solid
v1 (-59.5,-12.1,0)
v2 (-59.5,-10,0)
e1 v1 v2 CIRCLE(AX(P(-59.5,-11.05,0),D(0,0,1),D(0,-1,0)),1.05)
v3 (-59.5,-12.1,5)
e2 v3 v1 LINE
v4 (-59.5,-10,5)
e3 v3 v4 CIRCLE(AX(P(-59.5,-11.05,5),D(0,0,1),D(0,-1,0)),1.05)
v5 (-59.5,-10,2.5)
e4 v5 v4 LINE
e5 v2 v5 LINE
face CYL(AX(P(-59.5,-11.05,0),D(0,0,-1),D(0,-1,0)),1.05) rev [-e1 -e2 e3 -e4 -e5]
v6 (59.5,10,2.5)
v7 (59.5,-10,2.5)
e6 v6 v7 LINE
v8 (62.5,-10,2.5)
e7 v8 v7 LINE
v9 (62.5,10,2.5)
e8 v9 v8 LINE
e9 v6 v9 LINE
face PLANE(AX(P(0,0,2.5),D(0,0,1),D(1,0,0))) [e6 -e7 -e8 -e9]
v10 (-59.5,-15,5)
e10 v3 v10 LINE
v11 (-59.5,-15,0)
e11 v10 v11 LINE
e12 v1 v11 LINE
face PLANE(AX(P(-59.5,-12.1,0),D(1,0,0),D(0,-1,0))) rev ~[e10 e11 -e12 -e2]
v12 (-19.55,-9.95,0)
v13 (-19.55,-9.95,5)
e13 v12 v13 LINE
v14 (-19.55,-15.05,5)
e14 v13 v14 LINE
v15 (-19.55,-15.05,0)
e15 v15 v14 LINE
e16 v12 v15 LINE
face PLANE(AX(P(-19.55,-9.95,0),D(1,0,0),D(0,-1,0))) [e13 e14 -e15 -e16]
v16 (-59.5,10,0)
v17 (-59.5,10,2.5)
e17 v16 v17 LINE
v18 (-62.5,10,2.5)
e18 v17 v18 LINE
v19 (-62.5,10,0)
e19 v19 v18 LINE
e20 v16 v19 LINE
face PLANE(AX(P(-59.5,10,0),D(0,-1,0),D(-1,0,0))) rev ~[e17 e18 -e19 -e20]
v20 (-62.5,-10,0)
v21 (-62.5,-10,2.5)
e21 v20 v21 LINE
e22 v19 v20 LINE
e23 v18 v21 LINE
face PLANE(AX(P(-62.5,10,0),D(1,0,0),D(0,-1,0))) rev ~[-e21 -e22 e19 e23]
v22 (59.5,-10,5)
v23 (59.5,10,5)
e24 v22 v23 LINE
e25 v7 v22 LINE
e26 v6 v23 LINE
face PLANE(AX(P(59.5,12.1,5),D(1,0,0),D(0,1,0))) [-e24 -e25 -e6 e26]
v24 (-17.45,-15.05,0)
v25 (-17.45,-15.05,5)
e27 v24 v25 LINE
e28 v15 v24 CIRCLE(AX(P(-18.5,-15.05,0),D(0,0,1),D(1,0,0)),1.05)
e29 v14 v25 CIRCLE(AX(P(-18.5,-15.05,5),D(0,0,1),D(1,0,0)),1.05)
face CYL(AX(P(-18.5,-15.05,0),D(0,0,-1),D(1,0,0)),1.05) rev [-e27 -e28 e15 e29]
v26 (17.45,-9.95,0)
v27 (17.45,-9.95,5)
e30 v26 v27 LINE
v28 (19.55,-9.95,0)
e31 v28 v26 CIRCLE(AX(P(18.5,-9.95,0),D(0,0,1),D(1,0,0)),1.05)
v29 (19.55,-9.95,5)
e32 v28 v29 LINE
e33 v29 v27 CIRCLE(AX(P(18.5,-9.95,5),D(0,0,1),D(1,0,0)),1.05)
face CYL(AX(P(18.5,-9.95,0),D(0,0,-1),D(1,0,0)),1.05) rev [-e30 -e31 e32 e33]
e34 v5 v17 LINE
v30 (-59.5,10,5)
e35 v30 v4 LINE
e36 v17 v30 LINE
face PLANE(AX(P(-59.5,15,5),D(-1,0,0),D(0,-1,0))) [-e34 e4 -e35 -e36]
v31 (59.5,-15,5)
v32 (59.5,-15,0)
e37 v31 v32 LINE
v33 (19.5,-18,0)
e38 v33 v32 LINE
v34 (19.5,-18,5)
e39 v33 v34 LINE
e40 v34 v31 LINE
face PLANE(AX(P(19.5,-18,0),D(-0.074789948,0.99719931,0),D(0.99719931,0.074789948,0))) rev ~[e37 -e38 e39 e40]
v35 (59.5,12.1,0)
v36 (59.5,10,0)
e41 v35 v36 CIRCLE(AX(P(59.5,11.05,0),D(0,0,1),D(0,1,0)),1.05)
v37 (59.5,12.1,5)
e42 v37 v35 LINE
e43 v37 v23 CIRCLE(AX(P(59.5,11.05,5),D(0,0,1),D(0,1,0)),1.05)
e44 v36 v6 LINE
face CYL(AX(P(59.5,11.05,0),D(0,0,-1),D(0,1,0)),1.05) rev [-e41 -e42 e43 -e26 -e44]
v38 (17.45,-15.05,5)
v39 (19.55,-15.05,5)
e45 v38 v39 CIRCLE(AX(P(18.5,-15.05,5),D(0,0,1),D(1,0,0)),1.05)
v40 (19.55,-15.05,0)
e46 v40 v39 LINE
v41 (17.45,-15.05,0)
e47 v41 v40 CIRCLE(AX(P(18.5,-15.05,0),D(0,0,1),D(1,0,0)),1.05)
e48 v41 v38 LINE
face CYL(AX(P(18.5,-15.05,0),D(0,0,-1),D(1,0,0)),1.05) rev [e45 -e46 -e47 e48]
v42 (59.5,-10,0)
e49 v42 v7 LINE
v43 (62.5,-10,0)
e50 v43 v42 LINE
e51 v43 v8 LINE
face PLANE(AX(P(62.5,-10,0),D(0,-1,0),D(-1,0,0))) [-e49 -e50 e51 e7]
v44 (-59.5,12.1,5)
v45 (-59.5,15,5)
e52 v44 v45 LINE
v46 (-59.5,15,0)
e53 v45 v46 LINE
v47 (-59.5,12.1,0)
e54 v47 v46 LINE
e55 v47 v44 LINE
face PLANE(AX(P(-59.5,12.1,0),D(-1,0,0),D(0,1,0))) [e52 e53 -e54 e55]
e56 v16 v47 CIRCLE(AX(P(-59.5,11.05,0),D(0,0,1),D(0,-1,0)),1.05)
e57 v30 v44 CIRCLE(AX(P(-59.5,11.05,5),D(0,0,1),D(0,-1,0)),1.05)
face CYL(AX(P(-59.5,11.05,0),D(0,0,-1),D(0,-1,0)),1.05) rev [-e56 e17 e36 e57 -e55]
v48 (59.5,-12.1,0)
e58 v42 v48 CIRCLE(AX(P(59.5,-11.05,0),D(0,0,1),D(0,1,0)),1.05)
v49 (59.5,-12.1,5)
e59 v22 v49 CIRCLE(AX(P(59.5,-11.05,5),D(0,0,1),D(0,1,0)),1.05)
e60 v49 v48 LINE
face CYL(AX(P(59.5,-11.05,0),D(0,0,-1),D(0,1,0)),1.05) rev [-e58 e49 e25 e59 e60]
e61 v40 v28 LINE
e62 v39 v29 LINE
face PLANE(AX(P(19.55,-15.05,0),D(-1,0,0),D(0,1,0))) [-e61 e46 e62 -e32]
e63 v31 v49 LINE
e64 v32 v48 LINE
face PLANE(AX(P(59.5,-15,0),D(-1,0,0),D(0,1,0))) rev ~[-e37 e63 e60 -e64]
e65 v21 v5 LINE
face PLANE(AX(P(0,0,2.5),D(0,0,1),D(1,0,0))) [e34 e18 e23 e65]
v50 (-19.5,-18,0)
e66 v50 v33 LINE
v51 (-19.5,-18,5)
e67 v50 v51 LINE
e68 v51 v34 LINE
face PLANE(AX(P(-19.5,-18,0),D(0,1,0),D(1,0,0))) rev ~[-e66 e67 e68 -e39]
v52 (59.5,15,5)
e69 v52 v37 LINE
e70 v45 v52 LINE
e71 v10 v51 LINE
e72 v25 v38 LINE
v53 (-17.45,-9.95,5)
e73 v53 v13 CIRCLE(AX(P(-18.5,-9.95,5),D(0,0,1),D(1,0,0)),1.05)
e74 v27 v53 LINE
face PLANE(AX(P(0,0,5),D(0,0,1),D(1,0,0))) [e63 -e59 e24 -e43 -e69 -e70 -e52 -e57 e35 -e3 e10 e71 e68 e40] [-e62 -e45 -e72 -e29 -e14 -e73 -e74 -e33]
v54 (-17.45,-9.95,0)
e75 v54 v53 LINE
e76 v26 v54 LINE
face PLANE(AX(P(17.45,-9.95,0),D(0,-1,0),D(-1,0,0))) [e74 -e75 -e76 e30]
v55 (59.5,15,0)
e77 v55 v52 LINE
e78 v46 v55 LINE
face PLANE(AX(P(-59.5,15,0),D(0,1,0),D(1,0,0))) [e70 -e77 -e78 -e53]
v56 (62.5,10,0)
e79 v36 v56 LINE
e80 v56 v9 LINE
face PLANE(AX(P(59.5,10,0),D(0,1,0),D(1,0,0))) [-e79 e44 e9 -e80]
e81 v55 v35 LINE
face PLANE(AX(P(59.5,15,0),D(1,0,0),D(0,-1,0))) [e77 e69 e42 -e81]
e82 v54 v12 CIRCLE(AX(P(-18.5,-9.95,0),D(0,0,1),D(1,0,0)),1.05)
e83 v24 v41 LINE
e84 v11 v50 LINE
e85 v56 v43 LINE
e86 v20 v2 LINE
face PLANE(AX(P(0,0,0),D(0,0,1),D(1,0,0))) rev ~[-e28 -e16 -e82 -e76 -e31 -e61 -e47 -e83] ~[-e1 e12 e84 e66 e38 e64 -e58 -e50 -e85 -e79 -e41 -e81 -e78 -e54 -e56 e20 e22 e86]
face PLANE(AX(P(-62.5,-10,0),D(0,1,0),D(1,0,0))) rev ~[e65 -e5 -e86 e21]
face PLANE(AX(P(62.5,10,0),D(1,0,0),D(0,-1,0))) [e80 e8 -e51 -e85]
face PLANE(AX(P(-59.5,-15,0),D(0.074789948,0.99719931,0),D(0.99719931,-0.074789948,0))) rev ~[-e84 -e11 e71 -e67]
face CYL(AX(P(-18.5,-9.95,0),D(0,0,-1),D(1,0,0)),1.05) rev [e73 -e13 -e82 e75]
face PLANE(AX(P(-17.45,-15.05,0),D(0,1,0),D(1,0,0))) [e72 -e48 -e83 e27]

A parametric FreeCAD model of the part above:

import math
import FreeCAD as App
import Part
import Sketcher

V = App.Vector

doc = App.newDocument("Part")
body = doc.addObject("PartDesign::Body", "Body")

# Sketch on XY plane
sketch1 = doc.addObject("Sketcher::SketchObject", "Sketch")
body.addObject(sketch1)
sketch1.AttachmentSupport = (doc.XY_Plane, [""])
sketch1.MapMode = "FlatFace"
sketch1.addGeometry([
    Part.LineSegment(V(-59.5, 15, 0), V(-59.5, 12.1, 0)),  # 0
    Part.ArcOfCircle(Part.Circle(V(-59.5, 11.1, 0), V(0, 0, 1), 1.1), math.radians(-90), math.radians(90)),  # 1
    Part.LineSegment(V(-59.5, 10, 0), V(-62.5, 10, 0)),  # 2
    Part.LineSegment(V(-62.5, 10, 0), V(-62.5, -10, 0)),  # 3
    Part.LineSegment(V(-62.5, -10, 0), V(-59.5, -10, 0)),  # 4
    Part.ArcOfCircle(Part.Circle(V(-59.5, -11.1, 0), V(0, 0, 1), 1), math.radians(-90), math.radians(90)),  # 5
    Part.LineSegment(V(-59.5, -12.1, 0), V(-59.5, -15, 0)),  # 6
    Part.LineSegment(V(-59.5, -15, 0), V(-19.5, -18, 0)),  # 7
    Part.LineSegment(V(-19.5, -18, 0), V(19.5, -18, 0)),  # 8
    Part.LineSegment(V(19.5, -18, 0), V(59.5, -15, 0)),  # 9
    Part.LineSegment(V(59.5, -15, 0), V(59.5, -12.1, 0)),  # 10
    Part.ArcOfCircle(Part.Circle(V(59.5, -11.1, 0), V(0, 0, 1), 1.1), math.radians(90), math.radians(270)),  # 11
    Part.LineSegment(V(59.5, -10, 0), V(62.5, -10, 0)),  # 12
    Part.LineSegment(V(62.5, -10, 0), V(62.5, 10, 0)),  # 13
    Part.LineSegment(V(62.5, 10, 0), V(59.5, 10, 0)),  # 14
    Part.ArcOfCircle(Part.Circle(V(59.5, 11.1, 0), V(0, 0, 1), 1), math.radians(90), math.radians(270)),  # 15
    Part.LineSegment(V(59.5, 12.1, 0), V(59.5, 15, 0)),  # 16
    Part.LineSegment(V(59.5, 15, 0), V(-59.5, 15, 0)),  # 17
    Part.ArcOfCircle(Part.Circle(V(-18.5, -9.9, 0), V(0, 0, 1), 1.1), math.radians(0), math.radians(180)),  # 18
    Part.LineSegment(V(-17.4, -9.9, 0), V(17.4, -9.9, 0)),  # 19
    Part.ArcOfCircle(Part.Circle(V(18.5, -9.9, 0), V(0, 0, 1), 1.1), math.radians(0), math.radians(180)),  # 20
    Part.LineSegment(V(19.6, -9.9, 0), V(19.6, -15.1, 0)),  # 21
    Part.ArcOfCircle(Part.Circle(V(18.5, -15.1, 0), V(0, 0, 1), 1.1), math.radians(180), math.radians(360)),  # 22
    Part.LineSegment(V(17.4, -15.1, 0), V(-17.4, -15.1, 0)),  # 23
    Part.ArcOfCircle(Part.Circle(V(-18.5, -15.1, 0), V(0, 0, 1), 1.1), math.radians(180), math.radians(360)),  # 24
    Part.LineSegment(V(-19.6, -15.1, 0), V(-19.6, -9.9, 0)),  # 25
], False)
sketch1.addConstraint([
    Sketcher.Constraint("Coincident", 0, 2, 1, 2),
    Sketcher.Constraint("Tangent", 1, 1, 2, 1),
    Sketcher.Constraint("Coincident", 2, 2, 3, 1),
    Sketcher.Constraint("Coincident", 3, 2, 4, 1),
    Sketcher.Constraint("Tangent", 4, 2, 5, 2),
    Sketcher.Constraint("Coincident", 5, 1, 6, 1),
    Sketcher.Constraint("Coincident", 6, 2, 7, 1),
    Sketcher.Constraint("Coincident", 7, 2, 8, 1),
    Sketcher.Constraint("Coincident", 8, 2, 9, 1),
    Sketcher.Constraint("Coincident", 9, 2, 10, 1),
    Sketcher.Constraint("Coincident", 10, 2, 11, 2),
    Sketcher.Constraint("Tangent", 11, 1, 12, 1),
    Sketcher.Constraint("Coincident", 12, 2, 13, 1),
    Sketcher.Constraint("Coincident", 13, 2, 14, 1),
    Sketcher.Constraint("Tangent", 14, 2, 15, 2),
    Sketcher.Constraint("Coincident", 15, 1, 16, 1),
    Sketcher.Constraint("Coincident", 16, 2, 17, 1),
    Sketcher.Constraint("Coincident", 17, 2, 0, 1),
    Sketcher.Constraint("Coincident", 18, 1, 19, 1),
    Sketcher.Constraint("Coincident", 19, 2, 20, 2),
    Sketcher.Constraint("Tangent", 20, 1, 21, 1),
    Sketcher.Constraint("Tangent", 21, 2, 22, 2),
    Sketcher.Constraint("Coincident", 22, 1, 23, 1),
    Sketcher.Constraint("Coincident", 23, 2, 24, 2),
    Sketcher.Constraint("Tangent", 24, 1, 25, 1),
    Sketcher.Constraint("Tangent", 25, 2, 18, 2),
    Sketcher.Constraint("Vertical", 0),
    Sketcher.Constraint("Horizontal", 2),
    Sketcher.Constraint("Vertical", 3),
    Sketcher.Constraint("Horizontal", 4),
    Sketcher.Constraint("Vertical", 6),
    Sketcher.Constraint("Horizontal", 8),
    Sketcher.Constraint("Vertical", 10),
    Sketcher.Constraint("Horizontal", 12),
    Sketcher.Constraint("Vertical", 13),
    Sketcher.Constraint("Horizontal", 14),
    Sketcher.Constraint("Vertical", 16),
    Sketcher.Constraint("Horizontal", 17),
    Sketcher.Constraint("Horizontal", 19),
    Sketcher.Constraint("Vertical", 21),
    Sketcher.Constraint("Horizontal", 23),
    Sketcher.Constraint("Vertical", 25),
    Sketcher.Constraint("Equal", 1, 5),
    Sketcher.Constraint("Equal", 5, 11),
    Sketcher.Constraint("Equal", 11, 15),
    Sketcher.Constraint("Equal", 15, 18),
    Sketcher.Constraint("Equal", 18, 20),
    Sketcher.Constraint("Equal", 20, 22),
    Sketcher.Constraint("Equal", 22, 24),
    Sketcher.Constraint("Symmetric", 1, 3, 11, 3, -1, 1),
    Sketcher.Constraint("Symmetric", 5, 3, 15, 3, -1, 1),
    Sketcher.Constraint("Symmetric", 6, 2, 16, 2, -1, 1),
    Sketcher.Constraint("Symmetric", 9, 2, 17, 2, -1, 1),
    Sketcher.Constraint("Symmetric", 5, 3, 11, 3, -2),
    Sketcher.Constraint("Symmetric", 18, 3, 20, 3, -2),
    Sketcher.Constraint("Horizontal", 22, 3, 24, 3),
    Sketcher.Constraint("Horizontal", 20, 3, 18, 1),
    Sketcher.Constraint("Horizontal", 21, 2, 22, 1),
    Sketcher.Constraint("Vertical", 5, 3, 0, 2),
    Sketcher.Constraint("Vertical", 4, 2, 5, 1),
    Sketcher.Constraint("Equal", 4, 12),
    Sketcher.Constraint("Equal", 7, 9),
    Sketcher.Constraint("DistanceX", 2, 2, 2, 1, 3.0),
    Sketcher.Constraint("DistanceX", 8, 1, 8, 2, 39.0),
    Sketcher.Constraint("DistanceX", 17, 2, 17, 1, 119.0),
    Sketcher.Constraint("DistanceY", 3, 2, 3, 1, 20.0),
    Sketcher.Constraint("Radius", 1, 1.05),
    Sketcher.Constraint("DistanceY", 6, 2, 4, 2, 5.0),
    Sketcher.Constraint("DistanceY", 7, 2, 6, 2, 3.0),
    Sketcher.Constraint("DistanceY", 22, 3, 9, 2, 0.05),
    Sketcher.Constraint("DistanceX", 8, 2, 20, 1, 0.05),
    Sketcher.Constraint("DistanceY", 21, 2, 21, 1, 5.1),
])
pad1 = doc.addObject("PartDesign::Pad", "Pad")
body.addObject(pad1)
pad1.Profile = sketch1
pad1.Length = 5

# Sketch on XY plane
sketch2 = doc.addObject("Sketcher::SketchObject", "Sketch001")
body.addObject(sketch2)
sketch2.AttachmentSupport = (doc.XY_Plane, [""])
sketch2.MapMode = "FlatFace"
sketch2.AttachmentOffset = App.Placement(V(0, 0, 5), App.Rotation())
sketch2.addGeometry([
    Part.LineSegment(V(60, 14, 0), V(60, -16, 0)),  # 0
    Part.LineSegment(V(60, -16, 0), V(66, -16, 0)),  # 1
    Part.LineSegment(V(66, -16, 0), V(66, 14, 0)),  # 2
    Part.LineSegment(V(66, 14, 0), V(60, 14, 0)),  # 3
    Part.LineSegment(V(-60, -16, 0), V(-60, 18, 0)),  # 4
    Part.LineSegment(V(-60, 18, 0), V(-66, 18, 0)),  # 5
    Part.LineSegment(V(-66, 18, 0), V(-66, -16, 0)),  # 6
    Part.LineSegment(V(-66, -16, 0), V(-60, -16, 0)),  # 7
], False)
sketch2.addConstraint([
    Sketcher.Constraint("Coincident", 0, 2, 1, 1),
    Sketcher.Constraint("Coincident", 1, 2, 2, 1),
    Sketcher.Constraint("Coincident", 2, 2, 3, 1),
    Sketcher.Constraint("Coincident", 3, 2, 0, 1),
    Sketcher.Constraint("Coincident", 4, 2, 5, 1),
    Sketcher.Constraint("Coincident", 5, 2, 6, 1),
    Sketcher.Constraint("Coincident", 6, 2, 7, 1),
    Sketcher.Constraint("Coincident", 7, 2, 4, 1),
    Sketcher.Constraint("Vertical", 0),
    Sketcher.Constraint("Horizontal", 1),
    Sketcher.Constraint("Vertical", 2),
    Sketcher.Constraint("Horizontal", 3),
    Sketcher.Constraint("Vertical", 4),
    Sketcher.Constraint("Horizontal", 5),
    Sketcher.Constraint("Vertical", 6),
    Sketcher.Constraint("Horizontal", 7),
    Sketcher.Constraint("Symmetric", 0, 2, 7, 2, -2),
    Sketcher.Constraint("DistanceX", 4, 2, 3, 2, 119.0),
    Sketcher.Constraint("DistanceY", 0, 2, -1, 1, 16.1),
    Sketcher.Constraint("DistanceX", 1, 1, 1, 2, 6.126),
    Sketcher.Constraint("DistanceY", 0, 2, 0, 1, 30.072),
    Sketcher.Constraint("DistanceX", 5, 2, 5, 1, 6.3886),
    Sketcher.Constraint("DistanceY", 4, 1, 4, 2, 34.4327),
])
pocket1 = doc.addObject("PartDesign::Pocket", "Pocket")
body.addObject(pocket1)
pocket1.Profile = sketch2
pocket1.Length = 2.5

doc.recompute()
